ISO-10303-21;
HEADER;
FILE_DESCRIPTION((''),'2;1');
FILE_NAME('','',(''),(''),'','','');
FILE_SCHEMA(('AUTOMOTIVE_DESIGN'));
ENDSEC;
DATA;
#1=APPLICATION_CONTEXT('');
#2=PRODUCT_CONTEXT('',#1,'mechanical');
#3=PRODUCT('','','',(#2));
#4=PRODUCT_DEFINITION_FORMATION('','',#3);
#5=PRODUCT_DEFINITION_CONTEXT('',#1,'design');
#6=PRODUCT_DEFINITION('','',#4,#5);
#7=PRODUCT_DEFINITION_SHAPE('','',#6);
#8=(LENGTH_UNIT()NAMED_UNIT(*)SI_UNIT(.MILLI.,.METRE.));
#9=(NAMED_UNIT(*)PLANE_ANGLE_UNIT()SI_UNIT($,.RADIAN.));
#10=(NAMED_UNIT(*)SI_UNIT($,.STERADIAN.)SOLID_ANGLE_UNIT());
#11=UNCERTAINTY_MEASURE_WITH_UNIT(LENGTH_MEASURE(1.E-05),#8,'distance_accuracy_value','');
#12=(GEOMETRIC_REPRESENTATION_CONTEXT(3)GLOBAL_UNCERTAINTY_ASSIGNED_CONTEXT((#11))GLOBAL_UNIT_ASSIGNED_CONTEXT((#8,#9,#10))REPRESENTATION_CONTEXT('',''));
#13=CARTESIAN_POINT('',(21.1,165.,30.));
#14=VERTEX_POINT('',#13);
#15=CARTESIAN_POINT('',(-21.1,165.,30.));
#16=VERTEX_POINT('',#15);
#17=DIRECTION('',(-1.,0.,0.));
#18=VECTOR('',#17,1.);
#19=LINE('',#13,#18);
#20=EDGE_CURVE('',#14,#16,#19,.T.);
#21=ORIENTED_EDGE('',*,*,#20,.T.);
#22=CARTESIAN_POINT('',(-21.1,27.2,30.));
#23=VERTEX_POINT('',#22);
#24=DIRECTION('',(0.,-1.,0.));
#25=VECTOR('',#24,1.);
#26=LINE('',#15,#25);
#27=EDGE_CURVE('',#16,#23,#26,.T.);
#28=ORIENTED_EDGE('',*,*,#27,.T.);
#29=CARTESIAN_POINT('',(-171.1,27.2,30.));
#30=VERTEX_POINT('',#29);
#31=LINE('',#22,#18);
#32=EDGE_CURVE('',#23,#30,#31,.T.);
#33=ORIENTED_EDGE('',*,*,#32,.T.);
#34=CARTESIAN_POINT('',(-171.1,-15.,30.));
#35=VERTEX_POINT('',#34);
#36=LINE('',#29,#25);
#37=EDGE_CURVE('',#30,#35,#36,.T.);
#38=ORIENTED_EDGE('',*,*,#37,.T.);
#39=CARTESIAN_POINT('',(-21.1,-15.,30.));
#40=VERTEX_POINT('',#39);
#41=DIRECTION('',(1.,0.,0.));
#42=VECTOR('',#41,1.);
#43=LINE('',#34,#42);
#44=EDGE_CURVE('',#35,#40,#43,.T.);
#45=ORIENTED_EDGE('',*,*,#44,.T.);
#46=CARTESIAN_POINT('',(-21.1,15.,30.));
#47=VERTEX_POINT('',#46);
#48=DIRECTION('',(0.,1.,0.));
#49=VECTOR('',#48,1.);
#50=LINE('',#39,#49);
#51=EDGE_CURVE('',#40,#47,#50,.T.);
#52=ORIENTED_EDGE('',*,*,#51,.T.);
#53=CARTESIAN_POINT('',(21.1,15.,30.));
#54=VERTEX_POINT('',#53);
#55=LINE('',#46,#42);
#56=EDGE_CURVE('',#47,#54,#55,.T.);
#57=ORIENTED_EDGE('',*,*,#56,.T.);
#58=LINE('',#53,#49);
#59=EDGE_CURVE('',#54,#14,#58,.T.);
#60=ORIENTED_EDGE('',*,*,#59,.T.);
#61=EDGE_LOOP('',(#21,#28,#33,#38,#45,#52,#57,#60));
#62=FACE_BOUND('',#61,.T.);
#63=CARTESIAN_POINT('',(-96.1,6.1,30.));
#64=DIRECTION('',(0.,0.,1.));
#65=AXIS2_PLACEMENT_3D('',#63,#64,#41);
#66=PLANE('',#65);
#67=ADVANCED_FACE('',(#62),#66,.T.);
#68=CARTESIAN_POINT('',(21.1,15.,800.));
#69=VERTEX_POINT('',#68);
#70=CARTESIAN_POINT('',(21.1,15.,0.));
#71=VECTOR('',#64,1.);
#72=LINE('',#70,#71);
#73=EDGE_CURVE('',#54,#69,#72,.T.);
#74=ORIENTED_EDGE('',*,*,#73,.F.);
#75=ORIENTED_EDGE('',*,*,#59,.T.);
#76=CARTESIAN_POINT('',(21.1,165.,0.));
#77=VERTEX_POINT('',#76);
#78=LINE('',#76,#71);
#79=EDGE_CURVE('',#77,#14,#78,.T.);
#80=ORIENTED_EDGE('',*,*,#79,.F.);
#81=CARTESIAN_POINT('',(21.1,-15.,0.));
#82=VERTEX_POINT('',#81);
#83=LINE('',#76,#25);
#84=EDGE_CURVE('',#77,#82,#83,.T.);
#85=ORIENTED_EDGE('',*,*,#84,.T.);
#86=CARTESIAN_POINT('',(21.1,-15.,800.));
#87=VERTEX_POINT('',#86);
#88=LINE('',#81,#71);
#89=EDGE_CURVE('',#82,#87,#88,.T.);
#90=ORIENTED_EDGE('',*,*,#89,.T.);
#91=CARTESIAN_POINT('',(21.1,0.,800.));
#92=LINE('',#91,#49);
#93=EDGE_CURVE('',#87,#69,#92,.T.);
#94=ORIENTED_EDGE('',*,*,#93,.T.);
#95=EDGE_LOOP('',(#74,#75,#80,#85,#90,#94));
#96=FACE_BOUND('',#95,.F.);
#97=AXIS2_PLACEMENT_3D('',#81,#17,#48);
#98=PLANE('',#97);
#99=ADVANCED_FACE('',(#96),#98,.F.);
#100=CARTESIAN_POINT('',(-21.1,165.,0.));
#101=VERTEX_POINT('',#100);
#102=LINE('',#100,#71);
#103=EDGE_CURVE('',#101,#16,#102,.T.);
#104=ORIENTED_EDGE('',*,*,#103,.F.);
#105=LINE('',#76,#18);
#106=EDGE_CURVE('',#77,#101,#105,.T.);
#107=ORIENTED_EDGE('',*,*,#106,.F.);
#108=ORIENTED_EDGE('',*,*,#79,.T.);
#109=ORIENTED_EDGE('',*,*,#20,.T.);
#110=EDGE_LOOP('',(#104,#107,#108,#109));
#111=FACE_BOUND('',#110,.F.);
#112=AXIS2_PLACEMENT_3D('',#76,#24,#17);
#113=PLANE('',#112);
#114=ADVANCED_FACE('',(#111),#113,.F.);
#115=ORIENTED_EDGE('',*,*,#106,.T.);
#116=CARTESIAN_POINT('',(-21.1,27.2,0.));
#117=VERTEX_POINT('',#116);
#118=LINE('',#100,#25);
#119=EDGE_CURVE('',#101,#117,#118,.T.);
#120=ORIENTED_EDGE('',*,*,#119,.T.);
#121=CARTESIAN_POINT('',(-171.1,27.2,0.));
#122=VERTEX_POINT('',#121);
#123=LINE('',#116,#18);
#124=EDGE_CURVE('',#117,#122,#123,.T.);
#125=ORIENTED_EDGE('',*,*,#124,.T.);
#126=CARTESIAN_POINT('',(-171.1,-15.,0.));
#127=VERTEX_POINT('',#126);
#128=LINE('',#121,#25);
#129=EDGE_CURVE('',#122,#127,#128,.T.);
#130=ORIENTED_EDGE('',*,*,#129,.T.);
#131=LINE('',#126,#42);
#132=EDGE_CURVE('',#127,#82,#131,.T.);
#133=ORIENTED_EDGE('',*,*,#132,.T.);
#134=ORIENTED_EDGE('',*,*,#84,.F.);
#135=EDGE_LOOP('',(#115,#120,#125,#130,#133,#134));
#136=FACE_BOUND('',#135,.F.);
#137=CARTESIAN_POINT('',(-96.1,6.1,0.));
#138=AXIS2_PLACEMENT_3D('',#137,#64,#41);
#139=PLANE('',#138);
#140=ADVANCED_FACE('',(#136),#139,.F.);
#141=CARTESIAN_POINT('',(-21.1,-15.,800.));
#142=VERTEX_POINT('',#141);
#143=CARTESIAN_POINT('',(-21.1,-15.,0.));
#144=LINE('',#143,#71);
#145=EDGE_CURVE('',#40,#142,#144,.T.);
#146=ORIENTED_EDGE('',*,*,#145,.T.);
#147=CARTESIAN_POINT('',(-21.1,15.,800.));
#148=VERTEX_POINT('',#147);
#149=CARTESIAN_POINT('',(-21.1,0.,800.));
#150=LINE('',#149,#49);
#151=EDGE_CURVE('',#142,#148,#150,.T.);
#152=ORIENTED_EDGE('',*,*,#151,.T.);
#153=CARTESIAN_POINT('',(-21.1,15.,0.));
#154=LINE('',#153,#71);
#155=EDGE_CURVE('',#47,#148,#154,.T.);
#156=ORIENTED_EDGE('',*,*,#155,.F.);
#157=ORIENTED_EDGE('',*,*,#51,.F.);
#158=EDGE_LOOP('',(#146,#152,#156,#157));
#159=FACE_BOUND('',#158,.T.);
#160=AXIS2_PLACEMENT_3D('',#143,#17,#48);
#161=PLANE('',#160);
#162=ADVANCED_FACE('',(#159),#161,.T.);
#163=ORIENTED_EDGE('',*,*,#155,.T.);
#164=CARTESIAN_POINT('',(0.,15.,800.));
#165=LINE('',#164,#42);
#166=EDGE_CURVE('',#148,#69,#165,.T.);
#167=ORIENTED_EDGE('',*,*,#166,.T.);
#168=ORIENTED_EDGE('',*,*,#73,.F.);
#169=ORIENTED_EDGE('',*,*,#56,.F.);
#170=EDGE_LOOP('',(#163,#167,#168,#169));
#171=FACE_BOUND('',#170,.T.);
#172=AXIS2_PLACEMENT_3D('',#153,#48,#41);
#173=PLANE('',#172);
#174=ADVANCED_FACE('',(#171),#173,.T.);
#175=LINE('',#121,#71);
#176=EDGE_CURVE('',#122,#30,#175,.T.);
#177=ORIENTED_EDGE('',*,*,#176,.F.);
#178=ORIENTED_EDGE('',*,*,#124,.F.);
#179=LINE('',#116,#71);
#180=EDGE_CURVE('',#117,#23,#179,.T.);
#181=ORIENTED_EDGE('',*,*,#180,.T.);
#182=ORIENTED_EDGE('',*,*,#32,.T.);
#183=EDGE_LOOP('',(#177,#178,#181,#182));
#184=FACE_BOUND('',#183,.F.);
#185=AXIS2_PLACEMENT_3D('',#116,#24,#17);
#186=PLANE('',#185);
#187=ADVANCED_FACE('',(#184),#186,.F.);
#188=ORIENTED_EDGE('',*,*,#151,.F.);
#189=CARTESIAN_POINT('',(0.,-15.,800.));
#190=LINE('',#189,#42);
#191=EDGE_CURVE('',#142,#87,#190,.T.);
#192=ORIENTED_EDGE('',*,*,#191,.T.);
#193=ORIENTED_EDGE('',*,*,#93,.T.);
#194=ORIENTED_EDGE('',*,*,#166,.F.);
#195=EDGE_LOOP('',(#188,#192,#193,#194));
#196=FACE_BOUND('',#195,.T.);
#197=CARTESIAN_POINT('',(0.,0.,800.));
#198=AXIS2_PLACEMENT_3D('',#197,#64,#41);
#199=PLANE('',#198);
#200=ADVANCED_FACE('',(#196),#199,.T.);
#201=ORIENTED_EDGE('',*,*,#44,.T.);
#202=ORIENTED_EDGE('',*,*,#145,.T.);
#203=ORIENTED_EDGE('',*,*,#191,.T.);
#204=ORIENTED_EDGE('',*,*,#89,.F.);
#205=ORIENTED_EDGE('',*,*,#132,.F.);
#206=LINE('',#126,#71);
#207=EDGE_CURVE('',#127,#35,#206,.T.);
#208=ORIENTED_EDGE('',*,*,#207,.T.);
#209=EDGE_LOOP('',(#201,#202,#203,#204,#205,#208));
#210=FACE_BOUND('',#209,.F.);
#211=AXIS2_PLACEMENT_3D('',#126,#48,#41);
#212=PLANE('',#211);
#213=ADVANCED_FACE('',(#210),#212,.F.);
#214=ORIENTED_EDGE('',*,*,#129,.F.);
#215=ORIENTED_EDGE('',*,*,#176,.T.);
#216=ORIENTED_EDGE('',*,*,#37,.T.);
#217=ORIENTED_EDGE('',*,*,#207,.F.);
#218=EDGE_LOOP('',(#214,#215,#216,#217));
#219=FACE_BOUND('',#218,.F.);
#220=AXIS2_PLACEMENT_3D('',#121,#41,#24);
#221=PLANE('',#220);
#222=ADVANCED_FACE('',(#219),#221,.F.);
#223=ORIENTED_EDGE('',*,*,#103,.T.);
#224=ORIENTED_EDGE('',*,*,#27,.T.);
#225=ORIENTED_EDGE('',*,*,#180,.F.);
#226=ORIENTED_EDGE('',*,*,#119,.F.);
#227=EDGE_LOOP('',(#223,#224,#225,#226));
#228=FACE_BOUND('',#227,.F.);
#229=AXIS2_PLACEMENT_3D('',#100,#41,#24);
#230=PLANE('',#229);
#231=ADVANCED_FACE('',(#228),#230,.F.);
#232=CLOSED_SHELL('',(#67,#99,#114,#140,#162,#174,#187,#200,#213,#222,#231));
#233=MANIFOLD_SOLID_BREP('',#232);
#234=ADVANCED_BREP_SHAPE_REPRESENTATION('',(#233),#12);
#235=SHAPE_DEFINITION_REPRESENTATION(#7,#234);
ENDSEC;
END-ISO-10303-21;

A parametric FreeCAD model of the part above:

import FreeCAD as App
import Part
import Sketcher

V = App.Vector
Q = App.Units.Quantity

doc = App.newDocument("Part")
body = doc.addObject("PartDesign::Body", "Body")

# Sketch on XY plane
sketch1 = body.newObject("Sketcher::SketchObject", "Sketch")
sketch1.AttachmentSupport = (doc.getObject("XY_Plane"), [""])
sketch1.MapMode = "FlatFace"
sketch1.addGeometry([
    Part.LineSegment(V(-21.1, 15, 0), V(-21.1, -15, 0)),
    Part.LineSegment(V(-21.1, -15, 0), V(21.1, -15, 0)),
    Part.LineSegment(V(21.1, -15, 0), V(21.1, 15, 0)),
    Part.LineSegment(V(21.1, 15, 0), V(-21.1, 15, 0)),
], False)
sketch1.addConstraint([
    Sketcher.Constraint("Coincident", 0, 2, 1, 1),
    Sketcher.Constraint("Coincident", 1, 2, 2, 1),
    Sketcher.Constraint("Coincident", 2, 2, 3, 1),
    Sketcher.Constraint("Coincident", 3, 2, 0, 1),
    Sketcher.Constraint("Vertical", 0),
    Sketcher.Constraint("Horizontal", 1),
    Sketcher.Constraint("Vertical", 2),
    Sketcher.Constraint("Horizontal", 3),
    Sketcher.Constraint("Symmetric", 0, 2, 2, 2, -1, 1),
    Sketcher.Constraint("DistanceY", 0, 2, 0, 1, Q("30 mm")),
    Sketcher.Constraint("DistanceX", 1, 1, 1, 2, Q("42.2 mm")),
])
pad1 = body.newObject("PartDesign::Pad", "Pad")
pad1.Profile = sketch1
pad1.Length = 800

# Sketch on XY plane
sketch2 = body.newObject("Sketcher::SketchObject", "Sketch001")
sketch2.AttachmentSupport = (doc.getObject("XY_Plane"), [""])
sketch2.MapMode = "FlatFace"
sketch2.addGeometry([
    Part.LineSegment(V(-171.1, -15, 0), V(-21.1, -15, 0)),  # 0
    Part.LineSegment(V(-21.1, -15, 0), V(-21.1, 15, 0)),  # 1
    Part.LineSegment(V(-21.1, 15, 0), V(21.1, 15, 0)),  # 2
    Part.LineSegment(V(21.1, 15, 0), V(21.1, 165, 0)),  # 3
    Part.LineSegment(V(21.1, 165, 0), V(-21.1, 165, 0)),  # 4
    Part.LineSegment(V(-21.1, 165, 0), V(-21.1, 27.2, 0)),  # 5
    Part.LineSegment(V(-21.1, 27.2, 0), V(-171.1, 27.2, 0)),  # 6
    Part.LineSegment(V(-171.1, 27.2, 0), V(-171.1, -15, 0)),  # 7
], False)
sketch2.addConstraint([
    Sketcher.Constraint("Coincident", 0, 2, 1, 1),
    Sketcher.Constraint("Coincident", 1, 2, 2, 1),
    Sketcher.Constraint("Coincident", 2, 2, 3, 1),
    Sketcher.Constraint("Coincident", 3, 2, 4, 1),
    Sketcher.Constraint("Coincident", 4, 2, 5, 1),
    Sketcher.Constraint("Coincident", 5, 2, 6, 1),
    Sketcher.Constraint("Coincident", 6, 2, 7, 1),
    Sketcher.Constraint("Coincident", 7, 2, 0, 1),
    Sketcher.Constraint("Horizontal", 0),
    Sketcher.Constraint("Vertical", 1),
    Sketcher.Constraint("Horizontal", 2),
    Sketcher.Constraint("Vertical", 3),
    Sketcher.Constraint("Horizontal", 4),
    Sketcher.Constraint("Vertical", 5),
    Sketcher.Constraint("Horizontal", 6),
    Sketcher.Constraint("Vertical", 7),
    Sketcher.Constraint("Symmetric", 0, 2, 2, 2, -1, 1),
    Sketcher.Constraint("Vertical", 1, 2, 4, 2),
    Sketcher.Constraint("Equal", 6, 3),
    Sketcher.Constraint("Equal", 4, 7),
    Sketcher.Constraint("DistanceX", 0, 1, 0, 2, Q("150 mm")),
    Sketcher.Constraint("DistanceY", 1, 1, 1, 2, Q("30 mm")),
    Sketcher.Constraint("DistanceX", 2, 1, 2, 2, Q("42.2 mm")),
])
pad2 = body.newObject("PartDesign::Pad", "Pad001")
pad2.Profile = sketch2
pad2.Length = 30

doc.recompute()
